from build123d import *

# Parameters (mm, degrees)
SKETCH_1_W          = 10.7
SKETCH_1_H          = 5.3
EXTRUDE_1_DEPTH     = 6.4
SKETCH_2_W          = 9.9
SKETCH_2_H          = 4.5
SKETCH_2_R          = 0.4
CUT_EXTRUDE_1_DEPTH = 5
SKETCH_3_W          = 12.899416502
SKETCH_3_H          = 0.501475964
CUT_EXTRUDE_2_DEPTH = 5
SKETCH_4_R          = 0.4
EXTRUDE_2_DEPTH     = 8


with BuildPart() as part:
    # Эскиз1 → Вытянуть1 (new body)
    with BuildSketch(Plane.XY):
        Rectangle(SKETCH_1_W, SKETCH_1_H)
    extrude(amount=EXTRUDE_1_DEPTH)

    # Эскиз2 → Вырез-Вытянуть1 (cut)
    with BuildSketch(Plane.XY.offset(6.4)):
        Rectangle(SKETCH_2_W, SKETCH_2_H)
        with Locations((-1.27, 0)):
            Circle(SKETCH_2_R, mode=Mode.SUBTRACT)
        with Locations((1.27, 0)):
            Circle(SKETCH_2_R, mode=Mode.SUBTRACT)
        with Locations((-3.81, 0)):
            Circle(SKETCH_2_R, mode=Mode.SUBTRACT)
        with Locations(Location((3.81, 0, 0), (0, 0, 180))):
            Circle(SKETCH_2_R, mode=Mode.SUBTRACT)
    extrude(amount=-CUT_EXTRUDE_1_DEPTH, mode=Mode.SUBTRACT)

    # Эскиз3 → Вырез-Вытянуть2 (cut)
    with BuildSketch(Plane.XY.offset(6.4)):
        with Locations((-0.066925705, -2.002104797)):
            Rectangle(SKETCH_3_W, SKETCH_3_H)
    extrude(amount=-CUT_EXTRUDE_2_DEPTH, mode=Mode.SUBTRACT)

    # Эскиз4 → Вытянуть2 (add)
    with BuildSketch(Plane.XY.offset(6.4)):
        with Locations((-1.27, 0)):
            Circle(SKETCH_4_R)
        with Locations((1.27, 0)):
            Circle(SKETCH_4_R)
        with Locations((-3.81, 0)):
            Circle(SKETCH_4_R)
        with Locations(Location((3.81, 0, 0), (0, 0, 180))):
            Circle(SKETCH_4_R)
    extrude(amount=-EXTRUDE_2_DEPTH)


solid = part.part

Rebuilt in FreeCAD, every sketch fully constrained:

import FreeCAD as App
import Part
import Sketcher
Q = App.Units.Quantity


def add_polygon(sketch, points):
    """Adds a closed chain of lines whose ends are joined by coincident constraints."""
    first, n = sketch.GeometryCount, len(points)
    for a, b in zip(points, points[1:] + points[:1]):
        sketch.addGeometry(Part.LineSegment(App.Vector(*a, 0), App.Vector(*b, 0)), False)
    for i in range(n):
        sketch.addConstraint(Sketcher.Constraint("Coincident", first + i, 2, first + (i + 1) % n, 1))

doc = App.newDocument("Part")
body = doc.addObject("PartDesign::Body", "Body")

# Sketch on XY plane
sketch1 = body.newObject("Sketcher::SketchObject", "Sketch")
sketch1.AttachmentSupport = (doc.getObject("XY_Plane"), [""])
sketch1.MapMode = "FlatFace"
add_polygon(sketch1, [(-5, 3), (-5, -3), (5, -3), (5, 3)])  # lines 0-3
sketch1.addConstraint([
    Sketcher.Constraint("Vertical", 0),
    Sketcher.Constraint("Horizontal", 1),
    Sketcher.Constraint("Vertical", 2),
    Sketcher.Constraint("Horizontal", 3),
    Sketcher.Constraint("Symmetric", 0, 2, 2, 2, -1, 1),
    Sketcher.Constraint("DistanceX", 1, 1, 1, 2, Q("10.7 mm")),
    Sketcher.Constraint("DistanceY", 0, 2, 0, 1, Q("5.3 mm")),
])
pad1 = body.newObject("PartDesign::Pad", "Pad")
pad1.Profile = sketch1
pad1.Length = 6.4

# Sketch on XY plane
sketch2 = body.newObject("Sketcher::SketchObject", "Sketch001")
sketch2.AttachmentSupport = (doc.getObject("XY_Plane"), [""])
sketch2.MapMode = "FlatFace"
sketch2.AttachmentOffset = App.Placement(App.Vector(0, 0, 6.4), App.Rotation())
add_polygon(sketch2, [(-4.95, 2.25), (-4.95, -2.25), (4.95, -2.25), (4.95, 2.25)])  # lines 0-3
sketch2.addGeometry(Part.Circle(App.Vector(-3.81, 0, 0), App.Vector(0, 0, 1), 0.4), False)  # 4
sketch2.addGeometry(Part.Circle(App.Vector(-1.27, 0, 0), App.Vector(0, 0, 1), 0.4), False)  # 5
sketch2.addGeometry(Part.Circle(App.Vector(1.27, 0, 0), App.Vector(0, 0, 1), 0.4), False)  # 6
sketch2.addGeometry(Part.Circle(App.Vector(3.81, 0, 0), App.Vector(0, 0, 1), 0.4), False)  # 7
sketch2.addConstraint([
    Sketcher.Constraint("Vertical", 0),
    Sketcher.Constraint("Horizontal", 1),
    Sketcher.Constraint("Vertical", 2),
    Sketcher.Constraint("Horizontal", 3),
    Sketcher.Constraint("Equal", 4, 5),
    Sketcher.Constraint("Equal", 5, 6),
    Sketcher.Constraint("Equal", 6, 7),
    Sketcher.Constraint("Symmetric", 5, 3, 6, 3, -1, 1),
    Sketcher.Constraint("Symmetric", 4, 3, 7, 3, -1, 1),
    Sketcher.Constraint("Symmetric", 0, 2, 2, 2, -1, 1),
    Sketcher.Constraint("PointOnObject", 4, 3, -1),
    Sketcher.Constraint("PointOnObject", 5, 3, -1),
    Sketcher.Constraint("Diameter", 4, Q("0.8 mm")),
    Sketcher.Constraint("DistanceX", 1, 1, 1, 2, Q("9.9 mm")),
    Sketcher.Constraint("DistanceY", 0, 2, 0, 1, Q("4.5 mm")),
    Sketcher.Constraint("DistanceX", 4, 3, -1, 1, Q("3.81 mm")),
    Sketcher.Constraint("DistanceX", 5, 3, -1, 1, Q("1.27 mm")),
])
pocket1 = body.newObject("PartDesign::Pocket", "Pocket")
pocket1.Profile = sketch2
pocket1.Length = 5

# Sketch on XY plane
sketch3 = body.newObject("Sketcher::SketchObject", "Sketch002")
sketch3.AttachmentSupport = (doc.getObject("XY_Plane"), [""])
sketch3.MapMode = "FlatFace"
sketch3.AttachmentOffset = App.Placement(App.Vector(0, 0, 6.4), App.Rotation())
add_polygon(sketch3, [(-6.5, -1.8), (-6.5, -2.3), (6.4, -2.3), (6.4, -1.8)])  # lines 0-3
sketch3.addConstraint([
    Sketcher.Constraint("Vertical", 0),
    Sketcher.Constraint("Horizontal", 1),
    Sketcher.Constraint("Vertical", 2),
    Sketcher.Constraint("Horizontal", 3),
    Sketcher.Constraint("DistanceX", 1, 1, 1, 2, Q("12.899417 mm")),
    Sketcher.Constraint("DistanceY", 0, 2, 0, 1, Q("0.501476 mm")),
    Sketcher.Constraint("DistanceX", 0, 2, -1, 1, Q("6.516634 mm")),
    Sketcher.Constraint("DistanceY", 0, 2, -1, 1, Q("2.252843 mm")),
])
pocket2 = body.newObject("PartDesign::Pocket", "Pocket001")
pocket2.Profile = sketch3
pocket2.Length = 5

# Sketch on XY plane
sketch4 = body.newObject("Sketcher::SketchObject", "Sketch003")
sketch4.AttachmentSupport = (doc.getObject("XY_Plane"), [""])
sketch4.MapMode = "FlatFace"
sketch4.AttachmentOffset = App.Placement(App.Vector(0, 0, 6.4), App.Rotation())
sketch4.addGeometry([
    Part.Circle(App.Vector(-1.27, 0, 0), App.Vector(0, 0, 1), 0.4),
    Part.Circle(App.Vector(1.27, 0, 0), App.Vector(0, 0, 1), 0.4),
    Part.Circle(App.Vector(-3.81, 0, 0), App.Vector(0, 0, 1), 0.4),
    Part.Circle(App.Vector(3.81, 0, 0), App.Vector(0, 0, 1), 0.4),
], False)
sketch4.addConstraint([
    Sketcher.Constraint("Equal", 0, 1),
    Sketcher.Constraint("Equal", 1, 2),
    Sketcher.Constraint("Equal", 2, 3),
    Sketcher.Constraint("Symmetric", 0, 3, 1, 3, -1, 1),
    Sketcher.Constraint("Symmetric", 2, 3, 3, 3, -1, 1),
    Sketcher.Constraint("PointOnObject", 0, 3, -1),
    Sketcher.Constraint("PointOnObject", 2, 3, -1),
    Sketcher.Constraint("Diameter", 0, Q("0.8 mm")),
    Sketcher.Constraint("DistanceX", 0, 3, -1, 1, Q("1.27 mm")),
    Sketcher.Constraint("DistanceX", 2, 3, -1, 1, Q("3.81 mm")),
])
pad2 = body.newObject("PartDesign::Pad", "Pad001")
pad2.Profile = sketch4
pad2.Length = 8
pad2.Reversed = True

doc.recompute()
